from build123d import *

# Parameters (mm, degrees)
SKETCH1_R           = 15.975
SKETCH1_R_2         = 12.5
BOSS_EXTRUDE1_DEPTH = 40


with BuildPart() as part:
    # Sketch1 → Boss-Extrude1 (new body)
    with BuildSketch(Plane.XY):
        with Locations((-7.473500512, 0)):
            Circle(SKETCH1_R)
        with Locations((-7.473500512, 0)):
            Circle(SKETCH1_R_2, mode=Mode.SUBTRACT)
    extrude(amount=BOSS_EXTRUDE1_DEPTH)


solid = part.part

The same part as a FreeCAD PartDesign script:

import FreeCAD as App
import Part
import Sketcher
Q = App.Units.Quantity

doc = App.newDocument("Part")
body = doc.addObject("PartDesign::Body", "Body")

sketch1 = body.newObject("Sketcher::SketchObject", "Sketch")
sketch1.AttachmentSupport = (doc.getObject("XY_Plane"), [""])
sketch1.MapMode = "FlatFace"
sketch1.addGeometry(Part.Circle(App.Vector(-7, 0, 0), App.Vector(0, 0, 1), 16), False)
sketch1.addGeometry(Part.Circle(App.Vector(-7, 0, 0), App.Vector(0, 0, 1), 12), False)
sketch1.addConstraint(Sketcher.Constraint("Coincident", 1, 3, 0, 3))
sketch1.addConstraint(Sketcher.Constraint("PointOnObject", 0, 3, -1))
sketch1.addConstraint(Sketcher.Constraint("Diameter", 1, Q("25 mm")))
sketch1.addConstraint(Sketcher.Constraint("Diameter", 0, Q("31.95 mm")))
sketch1.addConstraint(Sketcher.Constraint("DistanceX", 0, 3, -1, 1, Q("7.473501 mm")))
pad1 = body.newObject("PartDesign::Pad", "Pad")
pad1.Profile = sketch1
pad1.Length = 40

doc.recompute()
